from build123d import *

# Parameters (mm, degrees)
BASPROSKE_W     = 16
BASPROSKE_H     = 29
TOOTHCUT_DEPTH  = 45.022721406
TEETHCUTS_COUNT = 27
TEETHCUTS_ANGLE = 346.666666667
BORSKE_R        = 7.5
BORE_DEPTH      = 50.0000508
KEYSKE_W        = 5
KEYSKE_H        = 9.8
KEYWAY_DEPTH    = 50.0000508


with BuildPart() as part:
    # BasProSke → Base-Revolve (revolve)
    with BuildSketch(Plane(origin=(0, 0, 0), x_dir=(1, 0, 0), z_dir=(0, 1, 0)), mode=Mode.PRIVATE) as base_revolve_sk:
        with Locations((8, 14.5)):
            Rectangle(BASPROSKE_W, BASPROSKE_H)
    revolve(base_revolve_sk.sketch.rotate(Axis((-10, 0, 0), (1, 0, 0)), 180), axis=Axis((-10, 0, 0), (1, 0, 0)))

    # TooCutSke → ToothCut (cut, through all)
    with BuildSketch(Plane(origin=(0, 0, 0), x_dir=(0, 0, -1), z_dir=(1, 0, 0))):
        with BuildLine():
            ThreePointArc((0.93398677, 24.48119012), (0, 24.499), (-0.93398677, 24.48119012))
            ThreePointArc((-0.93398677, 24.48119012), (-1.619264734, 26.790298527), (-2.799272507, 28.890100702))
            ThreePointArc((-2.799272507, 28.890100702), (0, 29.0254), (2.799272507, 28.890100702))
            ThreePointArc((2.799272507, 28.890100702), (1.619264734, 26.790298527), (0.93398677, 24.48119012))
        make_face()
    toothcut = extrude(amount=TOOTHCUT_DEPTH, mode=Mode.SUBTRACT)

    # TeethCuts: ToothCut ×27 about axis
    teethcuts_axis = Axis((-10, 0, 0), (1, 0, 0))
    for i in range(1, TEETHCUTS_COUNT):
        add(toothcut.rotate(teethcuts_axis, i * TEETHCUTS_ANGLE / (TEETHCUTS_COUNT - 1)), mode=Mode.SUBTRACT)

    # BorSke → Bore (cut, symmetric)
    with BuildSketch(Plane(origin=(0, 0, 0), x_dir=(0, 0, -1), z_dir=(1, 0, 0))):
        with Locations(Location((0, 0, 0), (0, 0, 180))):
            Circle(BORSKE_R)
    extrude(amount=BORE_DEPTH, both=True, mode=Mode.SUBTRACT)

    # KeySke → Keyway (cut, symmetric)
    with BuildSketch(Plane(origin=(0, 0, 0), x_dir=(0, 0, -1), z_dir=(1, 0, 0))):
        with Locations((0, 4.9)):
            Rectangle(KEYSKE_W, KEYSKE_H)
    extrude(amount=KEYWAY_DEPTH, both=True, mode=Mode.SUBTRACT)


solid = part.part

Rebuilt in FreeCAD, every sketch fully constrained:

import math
import FreeCAD as App
import Part
import Sketcher

V = App.Vector


def add_polygon(sketch, points):
    """Adds a closed chain of lines whose ends are joined by coincident constraints."""
    first, n = sketch.GeometryCount, len(points)
    for a, b in zip(points, points[1:] + points[:1]):
        sketch.addGeometry(Part.LineSegment(App.Vector(*a, 0), App.Vector(*b, 0)), False)
    for i in range(n):
        sketch.addConstraint(Sketcher.Constraint("Coincident", first + i, 2, first + (i + 1) % n, 1))

doc = App.newDocument("Part")
body = doc.addObject("PartDesign::Body", "Body")

sketch1 = doc.addObject("Sketcher::SketchObject", "Sketch")
body.addObject(sketch1)
sketch1.AttachmentSupport = (doc.XZ_Plane, [""])
sketch1.MapMode = "FlatFace"
add_polygon(sketch1, [(0, -29), (0, 0), (16, 0), (16, -29)])
sketch1.addConstraint([
    Sketcher.Constraint("Vertical", 0),
    Sketcher.Constraint("Horizontal", 1),
    Sketcher.Constraint("Vertical", 2),
    Sketcher.Constraint("Horizontal", 3),
    Sketcher.Constraint("Coincident", 0, 2, -1, 1),
    Sketcher.Constraint("DistanceX", 1, 1, 1, 2, 16.0),
    Sketcher.Constraint("DistanceY", 0, 1, 0, 2, 29.0),
])
revolution = doc.addObject("PartDesign::Revolution", "Revolution")
body.addObject(revolution)
revolution.Profile = sketch1
revolution.ReferenceAxis = (sketch1, ["H_Axis"])
revolution.Angle = 360

sketch2 = doc.addObject("Sketcher::SketchObject", "Sketch001")
body.addObject(sketch2)
sketch2.AttachmentSupport = (doc.YZ_Plane, [""])
sketch2.MapMode = "FlatFace"
sketch2.addGeometry([
    Part.ArcOfCircle(Part.Circle(V(0, 0, 0), V(0, 0, 1), 24.5), math.radians(-2.18), math.radians(2.18)),
    Part.ArcOfCircle(Part.Circle(V(22.6, -11.6, 0), V(0, 0, 1), 10.8), math.radians(54), math.radians(80)),
    Part.ArcOfCircle(Part.Circle(V(0, 0, 0), V(0, 0, 1), 29), math.radians(-5.53), math.radians(5.53)),
    Part.ArcOfCircle(Part.Circle(V(22.6, 11.6, 0), V(0, 0, 1), 10.8), math.radians(-80), math.radians(-54)),
], False)
sketch2.addConstraint([
    Sketcher.Constraint("Coincident", 0, 1, 1, 2),
    Sketcher.Constraint("Coincident", 1, 1, 2, 1),
    Sketcher.Constraint("Coincident", 2, 2, 3, 2),
    Sketcher.Constraint("Coincident", 3, 1, 0, 2),
    Sketcher.Constraint("Coincident", 0, 3, -1, 1),
    Sketcher.Constraint("Coincident", 2, 3, -1, 1),
    Sketcher.Constraint("Equal", 1, 3),
    Sketcher.Constraint("Symmetric", 1, 3, 3, 3, -1),
    Sketcher.Constraint("Radius", 1, 10.8),
    Sketcher.Constraint("Radius", 0, 24.498999),
    Sketcher.Constraint("Radius", 2, 29.0254),
    Sketcher.Constraint("DistanceY", 1, 1, 3, 3, 14.365002),
    Sketcher.Constraint("DistanceX", -1, 1, 1, 1, 28.890101),
])
pocket1 = doc.addObject("PartDesign::Pocket", "Pocket")
body.addObject(pocket1)
pocket1.Profile = sketch2
pocket1.Type = "ThroughAll"
pocket1.Reversed = True
doc.recompute()

polarpattern = doc.addObject("PartDesign::PolarPattern", "PolarPattern")
body.addObject(polarpattern)
polarpattern.Originals = [pocket1]
polarpattern.Axis = (doc.X_Axis, [""])
polarpattern.Angle = 360
polarpattern.Occurrences = 27
body.Tip = polarpattern

sketch3 = doc.addObject("Sketcher::SketchObject", "Sketch002")
body.addObject(sketch3)
sketch3.AttachmentSupport = (doc.YZ_Plane, [""])
sketch3.MapMode = "FlatFace"
sketch3.addGeometry(Part.Circle(V(0, 0, 0), V(0, 0, 1), 8), False)
sketch3.addConstraint([
    Sketcher.Constraint("Coincident", 0, 3, -1, 1),
    Sketcher.Constraint("Diameter", 0, 15.0),
])
pocket2 = doc.addObject("PartDesign::Pocket", "Pocket001")
body.addObject(pocket2)
pocket2.Profile = sketch3
pocket2.Length = 100.000102
pocket2.Midplane = True

sketch4 = doc.addObject("Sketcher::SketchObject", "Sketch003")
body.addObject(sketch4)
sketch4.AttachmentSupport = (doc.YZ_Plane, [""])
sketch4.MapMode = "FlatFace"
add_polygon(sketch4, [(10, 2), (0, 2), (0, -2), (10, -2)])
sketch4.addConstraint([
    Sketcher.Constraint("Horizontal", 0),
    Sketcher.Constraint("Vertical", 1),
    Sketcher.Constraint("Horizontal", 2),
    Sketcher.Constraint("Vertical", 3),
    Sketcher.Constraint("Symmetric", 0, 2, 1, 2, -1, 1),
    Sketcher.Constraint("DistanceY", 1, 2, 1, 1, 5.0),
    Sketcher.Constraint("DistanceX", 0, 2, 0, 1, 9.8),
])
pocket3 = doc.addObject("PartDesign::Pocket", "Pocket002")
body.addObject(pocket3)
pocket3.Profile = sketch4
pocket3.Length = 100.000102
pocket3.Midplane = True

doc.recompute()
